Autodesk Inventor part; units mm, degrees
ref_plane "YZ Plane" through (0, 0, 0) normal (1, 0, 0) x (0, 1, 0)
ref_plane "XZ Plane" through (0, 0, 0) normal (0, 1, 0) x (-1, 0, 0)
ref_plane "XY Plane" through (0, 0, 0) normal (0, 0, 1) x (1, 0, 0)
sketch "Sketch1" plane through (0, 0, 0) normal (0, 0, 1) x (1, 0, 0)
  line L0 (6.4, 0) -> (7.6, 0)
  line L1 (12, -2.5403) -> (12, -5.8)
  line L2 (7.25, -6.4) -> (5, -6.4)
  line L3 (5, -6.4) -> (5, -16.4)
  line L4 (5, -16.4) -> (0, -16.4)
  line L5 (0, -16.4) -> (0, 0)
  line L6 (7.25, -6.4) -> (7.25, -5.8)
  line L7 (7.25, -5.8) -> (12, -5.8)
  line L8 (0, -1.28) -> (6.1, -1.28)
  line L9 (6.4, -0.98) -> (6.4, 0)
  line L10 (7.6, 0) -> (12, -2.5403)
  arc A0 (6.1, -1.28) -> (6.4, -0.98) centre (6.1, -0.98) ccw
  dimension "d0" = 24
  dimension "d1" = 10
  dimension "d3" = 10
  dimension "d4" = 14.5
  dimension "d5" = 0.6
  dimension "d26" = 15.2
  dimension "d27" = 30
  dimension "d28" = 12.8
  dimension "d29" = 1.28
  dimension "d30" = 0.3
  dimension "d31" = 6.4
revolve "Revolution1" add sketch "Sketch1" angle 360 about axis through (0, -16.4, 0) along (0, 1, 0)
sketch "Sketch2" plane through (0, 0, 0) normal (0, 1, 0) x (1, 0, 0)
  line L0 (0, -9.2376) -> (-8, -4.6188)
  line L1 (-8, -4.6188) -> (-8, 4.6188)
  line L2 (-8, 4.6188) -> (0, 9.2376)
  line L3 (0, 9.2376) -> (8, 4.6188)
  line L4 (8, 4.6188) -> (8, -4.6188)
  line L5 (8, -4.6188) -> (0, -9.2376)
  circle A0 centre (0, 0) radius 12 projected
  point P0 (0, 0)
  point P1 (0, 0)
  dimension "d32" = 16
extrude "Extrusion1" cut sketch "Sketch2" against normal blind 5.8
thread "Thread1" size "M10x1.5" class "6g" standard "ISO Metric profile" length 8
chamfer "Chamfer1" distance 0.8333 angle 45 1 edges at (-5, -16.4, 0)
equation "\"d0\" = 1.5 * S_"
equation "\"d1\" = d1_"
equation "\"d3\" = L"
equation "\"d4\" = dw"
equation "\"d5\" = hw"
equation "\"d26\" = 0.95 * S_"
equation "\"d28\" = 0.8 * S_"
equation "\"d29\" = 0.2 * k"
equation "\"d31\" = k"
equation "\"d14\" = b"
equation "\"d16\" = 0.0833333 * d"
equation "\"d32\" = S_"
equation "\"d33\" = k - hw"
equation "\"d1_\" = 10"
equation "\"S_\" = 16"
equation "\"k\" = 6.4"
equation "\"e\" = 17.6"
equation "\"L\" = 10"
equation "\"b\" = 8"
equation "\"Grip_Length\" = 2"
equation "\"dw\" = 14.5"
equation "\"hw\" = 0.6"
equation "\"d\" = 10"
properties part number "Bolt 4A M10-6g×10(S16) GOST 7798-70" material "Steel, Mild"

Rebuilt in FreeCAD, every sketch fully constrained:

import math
import FreeCAD as App
import Part
import Sketcher
from FreeCAD import Vector
Q = App.Units.Quantity


def edges_at(feature, points):
    """Names of the edges that pass closest to the given points."""
    edges = feature.Shape.Edges
    near = lambda p: min(range(len(edges)), key=lambda i: edges[i].distToShape(Part.Vertex(*p))[0])
    return sorted({f"Edge{near(p) + 1}" for p in points})

doc = App.newDocument("Part")
body = doc.addObject("PartDesign::Body", "Body")

sketch1 = body.newObject("Sketcher::SketchObject", "Sketch")
sketch1.AttachmentSupport = (doc.getObject("XY_Plane"), [""])
sketch1.MapMode = "FlatFace"
sketch1.addGeometry(Part.LineSegment(Vector(7.6, 0, 0), Vector(6.4, 0, 0)), False)
sketch1.addGeometry(Part.LineSegment(Vector(6.4, 0, 0), Vector(6.4, -0.98, 0)), False)
sketch1.addGeometry(Part.ArcOfCircle(Part.Circle(Vector(6.1, -0.98, 0), Vector(0, 0, 1), 0.3), math.radians(-90), math.radians(0)), False)
sketch1.addGeometry(Part.LineSegment(Vector(6.1, -1.28, 0), Vector(0, -1.28, 0)), False)
sketch1.addGeometry(Part.LineSegment(Vector(0, -1.28, 0), Vector(0, -16.4, 0)), False)
sketch1.addGeometry(Part.LineSegment(Vector(0, -16.4, 0), Vector(5, -16.4, 0)), False)
sketch1.addGeometry(Part.LineSegment(Vector(5, -16.4, 0), Vector(5, -6.4, 0)), False)
sketch1.addGeometry(Part.LineSegment(Vector(5, -6.4, 0), Vector(7.25, -6.4, 0)), False)
sketch1.addGeometry(Part.LineSegment(Vector(7.25, -6.4, 0), Vector(7.25, -5.8, 0)), False)
sketch1.addGeometry(Part.LineSegment(Vector(7.25, -5.8, 0), Vector(12, -5.8, 0)), False)
sketch1.addGeometry(Part.LineSegment(Vector(12, -5.8, 0), Vector(12, -2.54, 0)), False)
sketch1.addGeometry(Part.LineSegment(Vector(12, -2.54, 0), Vector(7.6, 0, 0)), False)
sketch1.addConstraint(Sketcher.Constraint("Coincident", 0, 2, 1, 1))
sketch1.addConstraint(Sketcher.Constraint("Tangent", 1, 2, 2, 2))
sketch1.addConstraint(Sketcher.Constraint("Tangent", 2, 1, 3, 1))
sketch1.addConstraint(Sketcher.Constraint("Coincident", 3, 2, 4, 1))
sketch1.addConstraint(Sketcher.Constraint("Coincident", 4, 2, 5, 1))
sketch1.addConstraint(Sketcher.Constraint("Coincident", 5, 2, 6, 1))
sketch1.addConstraint(Sketcher.Constraint("Coincident", 6, 2, 7, 1))
sketch1.addConstraint(Sketcher.Constraint("Coincident", 7, 2, 8, 1))
sketch1.addConstraint(Sketcher.Constraint("Coincident", 8, 2, 9, 1))
sketch1.addConstraint(Sketcher.Constraint("Coincident", 9, 2, 10, 1))
sketch1.addConstraint(Sketcher.Constraint("Coincident", 10, 2, 11, 1))
sketch1.addConstraint(Sketcher.Constraint("Coincident", 11, 2, 0, 1))
sketch1.addConstraint(Sketcher.Constraint("Horizontal", 0))
sketch1.addConstraint(Sketcher.Constraint("Vertical", 1))
sketch1.addConstraint(Sketcher.Constraint("Horizontal", 3))
sketch1.addConstraint(Sketcher.Constraint("Vertical", 4))
sketch1.addConstraint(Sketcher.Constraint("Horizontal", 5))
sketch1.addConstraint(Sketcher.Constraint("Vertical", 6))
sketch1.addConstraint(Sketcher.Constraint("Horizontal", 7))
sketch1.addConstraint(Sketcher.Constraint("Vertical", 8))
sketch1.addConstraint(Sketcher.Constraint("Horizontal", 9))
sketch1.addConstraint(Sketcher.Constraint("Vertical", 10))
sketch1.addConstraint(Sketcher.Constraint("PointOnObject", 0, 2, -1))
sketch1.addConstraint(Sketcher.Constraint("PointOnObject", 3, 2, -2))
sketch1.addConstraint(Sketcher.Constraint("Radius", 2, 0.3))
sketch1.addConstraint(Sketcher.Constraint("DistanceY", 6, 1, 6, 2, 10.0))
sketch1.addConstraint(Sketcher.Constraint("DistanceY", 8, 1, 8, 2, 0.6))
sketch1.addConstraint(Sketcher.Constraint("DistanceX", -1, 1, 0, 2, 6.4))
sketch1.addConstraint(Sketcher.Constraint("DistanceY", 6, 2, -1, 1, 6.4))
sketch1.addConstraint(Sketcher.Constraint("DistanceX", 5, 1, 5, 2, 5.0))
sketch1.addConstraint(Sketcher.Constraint("DistanceY", 2, 1, -1, 1, 1.28))
sketch1.addConstraint(Sketcher.Constraint("Angle", 11, Q("150.0004 deg")))
sketch1.addConstraint(Sketcher.Constraint("DistanceX", 0, 2, 0, 1, 1.2))
sketch1.addConstraint(Sketcher.Constraint("DistanceX", -1, 1, 9, 2, 12.0))
sketch1.addConstraint(Sketcher.Constraint("DistanceX", 7, 1, 7, 2, 2.25))
revolution = body.newObject("PartDesign::Revolution", "Revolution")
revolution.Profile = sketch1
revolution.ReferenceAxis = (sketch1, ["V_Axis"])
revolution.Angle = 360

sketch2 = body.newObject("Sketcher::SketchObject", "Sketch001")
sketch2.AttachmentSupport = (doc.getObject("XZ_Plane"), [""])
sketch2.MapMode = "FlatFace"
sketch2.addGeometry(Part.Circle(Vector(0, 0, 0), Vector(0, 0, 1), 12), False)
sketch2.addGeometry(Part.LineSegment(Vector(8, 5, 0), Vector(0, 9, 0)), False)
sketch2.addGeometry(Part.LineSegment(Vector(0, 9, 0), Vector(-8, 5, 0)), False)
sketch2.addGeometry(Part.LineSegment(Vector(-8, 5, 0), Vector(-8, -5, 0)), False)
sketch2.addGeometry(Part.LineSegment(Vector(-8, -5, 0), Vector(0, -9, 0)), False)
sketch2.addGeometry(Part.LineSegment(Vector(0, -9, 0), Vector(8, -5, 0)), False)
sketch2.addGeometry(Part.LineSegment(Vector(8, -5, 0), Vector(8, 5, 0)), False)
sketch2.addConstraint(Sketcher.Constraint("Coincident", 1, 2, 2, 1))
sketch2.addConstraint(Sketcher.Constraint("Coincident", 2, 2, 3, 1))
sketch2.addConstraint(Sketcher.Constraint("Coincident", 3, 2, 4, 1))
sketch2.addConstraint(Sketcher.Constraint("Coincident", 4, 2, 5, 1))
sketch2.addConstraint(Sketcher.Constraint("Coincident", 5, 2, 6, 1))
sketch2.addConstraint(Sketcher.Constraint("Coincident", 6, 2, 1, 1))
sketch2.addConstraint(Sketcher.Constraint("Vertical", 3))
sketch2.addConstraint(Sketcher.Constraint("Vertical", 6))
sketch2.addConstraint(Sketcher.Constraint("Coincident", 0, 3, -1, 1))
sketch2.addConstraint(Sketcher.Constraint("Symmetric", 1, 2, 4, 2, -1, 1))
sketch2.addConstraint(Sketcher.Constraint("Symmetric", 2, 2, 5, 2, -1, 1))
sketch2.addConstraint(Sketcher.Constraint("PointOnObject", 1, 2, -2))
sketch2.addConstraint(Sketcher.Constraint("Parallel", 1, 4))
sketch2.addConstraint(Sketcher.Constraint("Horizontal", 3, 2, 5, 2))
sketch2.addConstraint(Sketcher.Constraint("Diameter", 0, 24.0))
sketch2.addConstraint(Sketcher.Constraint("DistanceX", 3, 2, 5, 2, 16.0))
sketch2.addConstraint(Sketcher.Constraint("Angle", 1, Q("150 deg")))
sketch2.addConstraint(Sketcher.Constraint("DistanceY", 3, 2, 3, 1, 9.2376))
pocket1 = body.newObject("PartDesign::Pocket", "Pocket")
pocket1.Profile = sketch2
pocket1.Length = 5.8
pocket1.Reversed = True
doc.recompute()

chamfer = body.newObject("PartDesign::Chamfer", "Chamfer")
chamfer.Base = (pocket1, edges_at(pocket1, [(-5, -16.4, 0)]))
chamfer.Size = 0.8333

doc.recompute()
